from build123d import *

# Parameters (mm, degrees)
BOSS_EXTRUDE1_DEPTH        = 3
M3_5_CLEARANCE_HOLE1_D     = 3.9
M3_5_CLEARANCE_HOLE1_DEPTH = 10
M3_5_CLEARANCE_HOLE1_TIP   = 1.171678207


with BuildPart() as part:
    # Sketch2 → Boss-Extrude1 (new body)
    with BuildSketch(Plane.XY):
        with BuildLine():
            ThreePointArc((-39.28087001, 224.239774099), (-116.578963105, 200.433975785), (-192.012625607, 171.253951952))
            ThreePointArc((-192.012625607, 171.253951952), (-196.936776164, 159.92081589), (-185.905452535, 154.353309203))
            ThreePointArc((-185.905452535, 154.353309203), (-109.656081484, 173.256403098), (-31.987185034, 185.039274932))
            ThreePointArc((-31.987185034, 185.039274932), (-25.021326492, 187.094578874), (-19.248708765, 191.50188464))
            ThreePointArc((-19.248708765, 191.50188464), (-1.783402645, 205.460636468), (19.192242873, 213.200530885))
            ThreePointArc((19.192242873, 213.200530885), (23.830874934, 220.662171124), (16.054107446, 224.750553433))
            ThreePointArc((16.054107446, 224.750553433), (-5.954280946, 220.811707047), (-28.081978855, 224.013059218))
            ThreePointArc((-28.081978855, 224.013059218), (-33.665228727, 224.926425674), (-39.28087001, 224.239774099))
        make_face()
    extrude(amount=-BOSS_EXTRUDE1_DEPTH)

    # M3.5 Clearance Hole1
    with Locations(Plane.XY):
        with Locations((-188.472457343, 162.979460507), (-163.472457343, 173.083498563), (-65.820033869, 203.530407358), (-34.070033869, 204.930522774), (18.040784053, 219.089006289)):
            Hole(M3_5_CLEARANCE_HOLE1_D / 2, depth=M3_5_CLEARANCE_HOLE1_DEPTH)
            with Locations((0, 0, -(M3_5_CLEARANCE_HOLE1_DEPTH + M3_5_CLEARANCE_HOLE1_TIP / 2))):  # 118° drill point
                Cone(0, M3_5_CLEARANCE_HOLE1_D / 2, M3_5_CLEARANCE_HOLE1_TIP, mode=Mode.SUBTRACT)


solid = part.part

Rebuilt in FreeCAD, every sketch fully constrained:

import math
import FreeCAD as App
import Part
import Sketcher
Q = App.Units.Quantity

doc = App.newDocument("Part")
body = doc.addObject("PartDesign::Body", "Body")

# Sketch on XY plane
sketch1 = body.newObject("Sketcher::SketchObject", "Sketch")
sketch1.AttachmentSupport = (doc.getObject("XY_Plane"), [""])
sketch1.MapMode = "FlatFace"
sketch1.addGeometry([
    Part.ArcOfCircle(Part.Circle(App.Vector(260.342208, -886.042177, 0), App.Vector(0, 0, 1), 1150), math.radians(105.102213), math.radians(113.163234)),  # 0
    Part.ArcOfCircle(Part.Circle(App.Vector(-188.472457, 162.979461, 0), App.Vector(0, 0, 1), 9), math.radians(113.163234), math.radians(286.572164)),  # 1
    Part.ArcOfCircle(Part.Circle(App.Vector(56.53389, -660.338758, 0), App.Vector(0, 0, 1), 850), math.radians(95.977761), math.radians(106.572164)),  # 2
    Part.ArcOfCircle(Part.Circle(App.Vector(-34.070034, 204.930523, 0), App.Vector(0, 0, 1), 20), math.radians(-84.022239), math.radians(-42.177676)),  # 3
    Part.ArcOfCircle(Part.Circle(App.Vector(32.625929, 144.501651, 0), App.Vector(0, 0, 1), 70), math.radians(101.064259), math.radians(137.822324)),  # 4
    Part.ArcOfCircle(Part.Circle(App.Vector(18.040784, 219.089006, 0), App.Vector(0, 0, 1), 6), math.radians(-78.935741), math.radians(109.33633)),  # 5
    Part.ArcOfCircle(Part.Circle(App.Vector(-7.123786, 290.801937, 0), App.Vector(0, 0, 1), 70), math.radians(-107.421734), math.radians(-70.66367)),  # 6
    Part.ArcOfCircle(Part.Circle(App.Vector(-34.070034, 204.930523, 0), App.Vector(0, 0, 1), 20), math.radians(72.578266), math.radians(105.102213)),  # 7
], False)
sketch1.addConstraint([
    Sketcher.Constraint("Tangent", 0, 2, 1, 1),
    Sketcher.Constraint("Tangent", 1, 2, 2, 2),
    Sketcher.Constraint("Tangent", 2, 1, 3, 1),
    Sketcher.Constraint("Tangent", 3, 2, 4, 2),
    Sketcher.Constraint("Tangent", 4, 1, 5, 1),
    Sketcher.Constraint("Tangent", 5, 2, 6, 2),
    Sketcher.Constraint("Tangent", 6, 1, 7, 1),
    Sketcher.Constraint("Tangent", 7, 2, 0, 1),
    Sketcher.Constraint("Coincident", 7, 3, 3, 3),
    Sketcher.Constraint("Equal", 4, 6),
    Sketcher.Constraint("Equal", 3, 7),
    Sketcher.Constraint("Radius", 0, Q("1150 mm")),
    Sketcher.Constraint("Radius", 1, Q("9 mm")),
    Sketcher.Constraint("Radius", 2, Q("850 mm")),
    Sketcher.Constraint("Radius", 3, Q("20 mm")),
    Sketcher.Constraint("Radius", 4, Q("70 mm")),
    Sketcher.Constraint("Radius", 5, Q("6 mm")),
    Sketcher.Constraint("DistanceY", 0, 3, 3, 3, Q("1090.9727 mm")),
    Sketcher.Constraint("DistanceX", -1, 1, 0, 3, Q("260.342208 mm")),
    Sketcher.Constraint("DistanceY", -1, 1, 1, 3, Q("162.979461 mm")),
    Sketcher.Constraint("DistanceX", -1, 1, 2, 3, Q("56.53389 mm")),
    Sketcher.Constraint("DistanceX", -1, 1, 4, 3, Q("32.625929 mm")),
    Sketcher.Constraint("DistanceY", -1, 1, 4, 1, Q("213.200531 mm")),
])
pad1 = body.newObject("PartDesign::Pad", "Pad")
pad1.Profile = sketch1
pad1.Length = 3
pad1.Reversed = True

# Sketch on XY plane
sketch2 = body.newObject("Sketcher::SketchObject", "Sketch001")
sketch2.AttachmentSupport = (doc.getObject("XY_Plane"), [""])
sketch2.MapMode = "FlatFace"
sketch2.addGeometry([
    Part.Circle(App.Vector(-188.472457, 162.979461, 0), App.Vector(0, 0, 1), 1.95),  # 0
    Part.Circle(App.Vector(-163.472457, 173.083499, 0), App.Vector(0, 0, 1), 1.95),  # 1
    Part.Circle(App.Vector(-65.820034, 203.530407, 0), App.Vector(0, 0, 1), 1.95),  # 2
    Part.Circle(App.Vector(-34.070034, 204.930523, 0), App.Vector(0, 0, 1), 1.95),  # 3
    Part.Circle(App.Vector(18.040784, 219.089006, 0), App.Vector(0, 0, 1), 1.95),  # 4
], False)
sketch2.addConstraint([
    Sketcher.Constraint("Equal", 0, 1),
    Sketcher.Constraint("Equal", 1, 2),
    Sketcher.Constraint("Equal", 2, 3),
    Sketcher.Constraint("Equal", 3, 4),
    Sketcher.Constraint("Diameter", 0, Q("3.9 mm")),
    Sketcher.Constraint("DistanceX", 0, 3, 1, 3, Q("25 mm")),
    Sketcher.Constraint("DistanceX", 2, 3, 3, 3, Q("31.75 mm")),
    Sketcher.Constraint("DistanceY", -1, 1, 1, 3, Q("173.083499 mm")),
    Sketcher.Constraint("DistanceY", 2, 3, 4, 3, Q("15.558599 mm")),
    Sketcher.Constraint("DistanceY", -1, 1, 0, 3, Q("162.979461 mm")),
    Sketcher.Constraint("DistanceY", 1, 3, 2, 3, Q("30.446909 mm")),
    Sketcher.Constraint("DistanceX", 1, 3, 4, 3, Q("181.513241 mm")),
    Sketcher.Constraint("DistanceX", 0, 3, -1, 1, Q("188.472457 mm")),
    Sketcher.Constraint("DistanceX", 2, 3, -1, 1, Q("65.820034 mm")),
    Sketcher.Constraint("DistanceY", -1, 1, 3, 3, Q("204.930523 mm")),
])
doc.recompute()
hole = body.newObject("PartDesign::Hole", "Hole")
hole.Profile = sketch2
hole.ThreadType = "None"
hole.Diameter = 3.9
hole.DepthType = "Dimension"
hole.Depth = 10
hole.DrillPoint = "Angled"
hole.DrillPointAngle = 118

doc.recompute()
